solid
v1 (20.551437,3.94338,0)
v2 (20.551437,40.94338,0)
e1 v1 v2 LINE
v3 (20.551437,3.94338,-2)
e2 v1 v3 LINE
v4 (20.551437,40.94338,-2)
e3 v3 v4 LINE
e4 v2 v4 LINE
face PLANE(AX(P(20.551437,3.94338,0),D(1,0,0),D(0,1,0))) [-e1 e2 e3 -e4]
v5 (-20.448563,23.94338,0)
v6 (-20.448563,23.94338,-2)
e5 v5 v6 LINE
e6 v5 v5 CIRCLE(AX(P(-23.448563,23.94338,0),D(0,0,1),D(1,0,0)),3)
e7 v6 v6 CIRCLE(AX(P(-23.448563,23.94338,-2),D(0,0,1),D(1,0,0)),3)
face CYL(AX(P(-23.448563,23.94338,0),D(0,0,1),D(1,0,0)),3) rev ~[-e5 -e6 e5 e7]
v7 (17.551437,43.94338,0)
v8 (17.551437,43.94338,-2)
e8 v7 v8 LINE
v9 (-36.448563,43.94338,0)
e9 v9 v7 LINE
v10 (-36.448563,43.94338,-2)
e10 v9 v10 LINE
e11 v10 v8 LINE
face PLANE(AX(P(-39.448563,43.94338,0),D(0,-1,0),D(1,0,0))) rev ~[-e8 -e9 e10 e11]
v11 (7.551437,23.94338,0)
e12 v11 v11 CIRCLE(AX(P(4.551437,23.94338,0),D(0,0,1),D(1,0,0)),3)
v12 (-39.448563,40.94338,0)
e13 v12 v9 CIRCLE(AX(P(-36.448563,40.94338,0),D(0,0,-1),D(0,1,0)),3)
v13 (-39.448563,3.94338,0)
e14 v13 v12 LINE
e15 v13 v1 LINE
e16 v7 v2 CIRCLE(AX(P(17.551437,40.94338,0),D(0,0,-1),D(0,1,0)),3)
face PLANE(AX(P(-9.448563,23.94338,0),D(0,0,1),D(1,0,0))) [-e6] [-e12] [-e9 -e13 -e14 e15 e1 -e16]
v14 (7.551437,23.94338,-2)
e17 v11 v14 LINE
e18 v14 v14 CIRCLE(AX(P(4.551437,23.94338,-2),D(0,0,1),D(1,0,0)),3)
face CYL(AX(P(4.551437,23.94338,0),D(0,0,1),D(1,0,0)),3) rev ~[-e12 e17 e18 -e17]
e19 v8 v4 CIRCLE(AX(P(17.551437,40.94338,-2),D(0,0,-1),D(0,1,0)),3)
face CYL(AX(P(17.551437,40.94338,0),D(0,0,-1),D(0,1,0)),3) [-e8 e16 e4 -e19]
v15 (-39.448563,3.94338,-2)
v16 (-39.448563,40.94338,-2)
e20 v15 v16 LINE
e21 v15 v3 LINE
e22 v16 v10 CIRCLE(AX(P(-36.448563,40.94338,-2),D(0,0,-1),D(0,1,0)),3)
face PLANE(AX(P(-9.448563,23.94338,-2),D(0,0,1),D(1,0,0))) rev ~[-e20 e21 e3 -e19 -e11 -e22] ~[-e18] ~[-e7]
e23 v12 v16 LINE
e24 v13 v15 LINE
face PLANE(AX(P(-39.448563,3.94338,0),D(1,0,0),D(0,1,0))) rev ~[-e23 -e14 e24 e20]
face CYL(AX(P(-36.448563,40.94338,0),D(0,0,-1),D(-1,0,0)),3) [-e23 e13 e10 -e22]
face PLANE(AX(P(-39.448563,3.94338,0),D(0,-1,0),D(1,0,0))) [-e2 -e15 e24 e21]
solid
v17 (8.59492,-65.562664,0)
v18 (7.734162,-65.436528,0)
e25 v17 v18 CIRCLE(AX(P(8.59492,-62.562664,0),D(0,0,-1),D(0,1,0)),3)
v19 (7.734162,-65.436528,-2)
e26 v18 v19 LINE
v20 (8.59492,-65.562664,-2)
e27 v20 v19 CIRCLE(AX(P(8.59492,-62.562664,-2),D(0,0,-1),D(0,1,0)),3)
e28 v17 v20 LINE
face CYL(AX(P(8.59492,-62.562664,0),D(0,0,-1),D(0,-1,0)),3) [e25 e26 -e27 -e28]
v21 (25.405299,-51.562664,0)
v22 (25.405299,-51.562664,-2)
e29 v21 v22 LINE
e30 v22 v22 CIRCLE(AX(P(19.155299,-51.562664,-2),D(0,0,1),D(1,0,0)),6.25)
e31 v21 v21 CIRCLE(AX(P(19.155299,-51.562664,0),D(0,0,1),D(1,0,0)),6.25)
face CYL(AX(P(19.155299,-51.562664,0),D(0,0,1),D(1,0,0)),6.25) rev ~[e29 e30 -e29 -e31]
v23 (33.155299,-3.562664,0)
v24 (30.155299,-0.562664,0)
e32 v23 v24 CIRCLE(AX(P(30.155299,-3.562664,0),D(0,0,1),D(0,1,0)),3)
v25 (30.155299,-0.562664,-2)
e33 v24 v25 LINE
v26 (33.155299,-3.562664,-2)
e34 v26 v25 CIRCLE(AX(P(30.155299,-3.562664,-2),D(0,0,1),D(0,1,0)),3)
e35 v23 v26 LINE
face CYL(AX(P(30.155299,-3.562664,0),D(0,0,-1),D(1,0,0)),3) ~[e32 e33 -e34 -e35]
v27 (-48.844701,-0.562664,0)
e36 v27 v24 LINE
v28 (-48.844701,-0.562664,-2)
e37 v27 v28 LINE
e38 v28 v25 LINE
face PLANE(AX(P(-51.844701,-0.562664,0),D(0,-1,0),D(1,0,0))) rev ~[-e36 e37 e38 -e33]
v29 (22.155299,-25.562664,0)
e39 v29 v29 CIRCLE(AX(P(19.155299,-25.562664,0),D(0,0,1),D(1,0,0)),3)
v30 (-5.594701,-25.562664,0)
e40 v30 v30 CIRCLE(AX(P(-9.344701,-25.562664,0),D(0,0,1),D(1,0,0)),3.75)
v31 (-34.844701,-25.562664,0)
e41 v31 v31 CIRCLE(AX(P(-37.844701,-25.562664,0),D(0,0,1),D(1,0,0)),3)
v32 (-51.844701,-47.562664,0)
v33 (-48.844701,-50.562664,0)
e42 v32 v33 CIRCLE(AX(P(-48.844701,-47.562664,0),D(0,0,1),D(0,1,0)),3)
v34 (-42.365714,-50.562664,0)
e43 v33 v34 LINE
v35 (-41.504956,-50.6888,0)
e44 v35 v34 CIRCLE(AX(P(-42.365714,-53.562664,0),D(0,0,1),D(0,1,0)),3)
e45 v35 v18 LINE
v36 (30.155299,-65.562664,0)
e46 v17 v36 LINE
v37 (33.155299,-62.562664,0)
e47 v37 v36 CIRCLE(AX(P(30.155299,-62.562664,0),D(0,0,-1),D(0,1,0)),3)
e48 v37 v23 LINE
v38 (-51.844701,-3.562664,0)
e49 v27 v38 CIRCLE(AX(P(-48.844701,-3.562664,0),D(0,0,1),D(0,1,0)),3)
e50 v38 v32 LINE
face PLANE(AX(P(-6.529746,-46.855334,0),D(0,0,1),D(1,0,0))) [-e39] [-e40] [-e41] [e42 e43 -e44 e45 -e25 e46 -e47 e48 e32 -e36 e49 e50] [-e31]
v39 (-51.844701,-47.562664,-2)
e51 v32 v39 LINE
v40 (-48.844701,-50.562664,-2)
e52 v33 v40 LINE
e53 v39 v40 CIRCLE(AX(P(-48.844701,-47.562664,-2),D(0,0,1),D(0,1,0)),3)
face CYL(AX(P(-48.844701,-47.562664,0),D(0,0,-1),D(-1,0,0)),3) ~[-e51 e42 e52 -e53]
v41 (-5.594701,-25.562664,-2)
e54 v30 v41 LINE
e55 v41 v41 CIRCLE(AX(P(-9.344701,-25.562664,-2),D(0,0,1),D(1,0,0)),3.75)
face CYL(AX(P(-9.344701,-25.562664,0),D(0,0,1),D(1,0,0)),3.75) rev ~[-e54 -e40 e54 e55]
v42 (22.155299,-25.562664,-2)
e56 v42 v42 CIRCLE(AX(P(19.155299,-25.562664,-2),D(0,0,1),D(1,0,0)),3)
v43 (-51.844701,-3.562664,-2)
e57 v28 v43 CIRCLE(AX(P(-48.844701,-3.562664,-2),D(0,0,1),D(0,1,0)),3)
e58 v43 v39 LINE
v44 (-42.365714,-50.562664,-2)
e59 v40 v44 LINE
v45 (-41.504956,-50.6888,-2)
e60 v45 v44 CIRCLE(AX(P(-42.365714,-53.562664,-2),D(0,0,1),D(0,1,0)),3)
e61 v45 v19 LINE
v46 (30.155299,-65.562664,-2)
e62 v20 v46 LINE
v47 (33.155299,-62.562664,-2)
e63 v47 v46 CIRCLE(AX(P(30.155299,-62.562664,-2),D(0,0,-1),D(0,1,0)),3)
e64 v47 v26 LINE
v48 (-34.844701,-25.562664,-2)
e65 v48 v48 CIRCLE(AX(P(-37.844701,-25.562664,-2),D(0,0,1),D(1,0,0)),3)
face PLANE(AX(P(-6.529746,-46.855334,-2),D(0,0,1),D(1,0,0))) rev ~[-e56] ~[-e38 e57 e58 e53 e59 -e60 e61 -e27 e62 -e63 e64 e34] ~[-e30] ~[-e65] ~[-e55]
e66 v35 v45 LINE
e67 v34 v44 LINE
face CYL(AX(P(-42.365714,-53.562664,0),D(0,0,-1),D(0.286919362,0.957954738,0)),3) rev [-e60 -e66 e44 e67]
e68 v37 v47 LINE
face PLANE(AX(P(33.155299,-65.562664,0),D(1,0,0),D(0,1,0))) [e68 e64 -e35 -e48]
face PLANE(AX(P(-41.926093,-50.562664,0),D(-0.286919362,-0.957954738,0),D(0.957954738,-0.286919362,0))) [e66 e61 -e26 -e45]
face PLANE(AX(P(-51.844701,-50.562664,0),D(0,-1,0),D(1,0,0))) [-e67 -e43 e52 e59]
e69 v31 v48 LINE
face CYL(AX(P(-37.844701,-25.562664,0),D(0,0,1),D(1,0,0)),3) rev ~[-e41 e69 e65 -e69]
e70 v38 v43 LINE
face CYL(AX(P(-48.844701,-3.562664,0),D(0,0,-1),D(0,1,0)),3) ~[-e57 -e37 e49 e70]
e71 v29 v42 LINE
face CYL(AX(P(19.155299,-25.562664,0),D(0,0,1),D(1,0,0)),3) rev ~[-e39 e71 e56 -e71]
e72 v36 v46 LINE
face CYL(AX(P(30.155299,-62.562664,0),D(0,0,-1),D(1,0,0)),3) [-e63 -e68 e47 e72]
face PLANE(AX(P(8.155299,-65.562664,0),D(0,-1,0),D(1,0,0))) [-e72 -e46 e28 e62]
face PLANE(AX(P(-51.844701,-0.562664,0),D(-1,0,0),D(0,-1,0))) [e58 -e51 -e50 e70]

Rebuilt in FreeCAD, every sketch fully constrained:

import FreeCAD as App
import Part
import Sketcher
Q = App.Units.Quantity


def edges_at(feature, points):
    """Names of the edges that pass closest to the given points."""
    edges = feature.Shape.Edges
    near = lambda p: min(range(len(edges)), key=lambda i: edges[i].distToShape(Part.Vertex(*p))[0])
    return sorted({f"Edge{near(p) + 1}" for p in points})


def add_polygon(sketch, points):
    """Adds a closed chain of lines whose ends are joined by coincident constraints."""
    first, n = sketch.GeometryCount, len(points)
    for a, b in zip(points, points[1:] + points[:1]):
        sketch.addGeometry(Part.LineSegment(App.Vector(*a, 0), App.Vector(*b, 0)), False)
    for i in range(n):
        sketch.addConstraint(Sketcher.Constraint("Coincident", first + i, 2, first + (i + 1) % n, 1))

doc = App.newDocument("Part")
body = doc.addObject("PartDesign::Body", "Body")
body.AllowCompound = True

# Sketch on XY plane
sketch1 = doc.addObject("Sketcher::SketchObject", "Sketch")
body.addObject(sketch1)
sketch1.AttachmentSupport = (doc.XY_Plane, [""])
sketch1.MapMode = "FlatFace"
add_polygon(sketch1, [(-39.4, 43.9), (-39.4, 3.9), (20.6, 3.9), (20.6, 43.9)])  # lines 0-3
sketch1.addGeometry(Part.Circle(App.Vector(-23.4, 23.9, 0), App.Vector(0, 0, 1), 3), False)  # 4
sketch1.addGeometry(Part.Circle(App.Vector(4.6, 23.9, 0), App.Vector(0, 0, 1), 3), False)  # 5
add_polygon(sketch1, [(33.2, -65.6), (33.2, -0.6), (-51.8, -0.6), (-51.8, -50.6), (-41.9, -50.6), (8.2, -65.6)])  # lines 6-11
sketch1.addGeometry(Part.Circle(App.Vector(19.2, -51.6, 0), App.Vector(0, 0, 1), 6.2), False)  # 12
sketch1.addGeometry(Part.Circle(App.Vector(-37.8, -25.6, 0), App.Vector(0, 0, 1), 3), False)  # 13
sketch1.addGeometry(Part.Circle(App.Vector(-9.3, -25.6, 0), App.Vector(0, 0, 1), 3.8), False)  # 14
sketch1.addGeometry(Part.Circle(App.Vector(19.2, -25.6, 0), App.Vector(0, 0, 1), 3), False)  # 15
sketch1.addConstraint([
    Sketcher.Constraint("Vertical", 0),
    Sketcher.Constraint("Horizontal", 1),
    Sketcher.Constraint("Vertical", 2),
    Sketcher.Constraint("Horizontal", 3),
    Sketcher.Constraint("Vertical", 6),
    Sketcher.Constraint("Horizontal", 7),
    Sketcher.Constraint("Vertical", 8),
    Sketcher.Constraint("Horizontal", 9),
    Sketcher.Constraint("Horizontal", 11),
    Sketcher.Constraint("Equal", 4, 5),
    Sketcher.Constraint("Equal", 5, 13),
    Sketcher.Constraint("Equal", 13, 15),
    Sketcher.Constraint("Horizontal", 4, 3, 5, 3),
    Sketcher.Constraint("Horizontal", 13, 3, 14, 3),
    Sketcher.Constraint("Horizontal", 14, 3, 15, 3),
    Sketcher.Constraint("Vertical", 12, 3, 15, 3),
    Sketcher.Constraint("Diameter", 4, Q("6 mm")),
    Sketcher.Constraint("Diameter", 12, Q("12.5 mm")),
    Sketcher.Constraint("Diameter", 14, Q("7.5 mm")),
    Sketcher.Constraint("DistanceX", 1, 1, 1, 2, Q("60 mm")),
    Sketcher.Constraint("DistanceX", 7, 2, 7, 1, Q("85 mm")),
    Sketcher.Constraint("DistanceX", 11, 1, 11, 2, Q("25 mm")),
    Sketcher.Constraint("DistanceY", 0, 2, 0, 1, Q("40 mm")),
    Sketcher.Constraint("DistanceY", 6, 1, 6, 2, Q("65 mm")),
    Sketcher.Constraint("DistanceY", 8, 2, 8, 1, Q("50 mm")),
    Sketcher.Constraint("DistanceX", 4, 3, 5, 3, Q("28 mm")),
    Sketcher.Constraint("DistanceX", 13, 3, 12, 3, Q("57 mm")),
    Sketcher.Constraint("DistanceY", 12, 3, 13, 3, Q("26 mm")),
    Sketcher.Constraint("DistanceX", 0, 2, 4, 3, Q("16 mm")),
    Sketcher.Constraint("DistanceY", 0, 2, 4, 3, Q("20 mm")),
    Sketcher.Constraint("DistanceX", 15, 3, 6, 2, Q("14 mm")),
    Sketcher.Constraint("DistanceY", 15, 3, 6, 2, Q("25 mm")),
    Sketcher.Constraint("DistanceX", 13, 3, 14, 3, Q("28.5 mm")),
    Sketcher.Constraint("DistanceX", -1, 1, 12, 3, Q("19.155299 mm")),
    Sketcher.Constraint("DistanceX", 9, 1, 9, 2, Q("9.918608 mm")),
    Sketcher.Constraint("DistanceY", -1, 1, 4, 3, Q("23.94338 mm")),
    Sketcher.Constraint("DistanceX", 0, 2, 13, 3, Q("1.603862 mm")),
    Sketcher.Constraint("DistanceY", 12, 3, -1, 1, Q("51.562664 mm")),
])
pad1 = doc.addObject("PartDesign::Pad", "Pad")
body.addObject(pad1)
pad1.Profile = sketch1
pad1.Length = 2
pad1.Reversed = True
doc.recompute()

fillet = doc.addObject("PartDesign::Fillet", "Fillet")
body.addObject(fillet)
fillet.Base = (pad1, edges_at(pad1, [
    (-39.449, 43.943, -1),
    (20.551, 43.943, -1),
    (-51.845, -0.563, -1),
    (-51.845, -50.563, -1),
    (-41.926, -50.563, -1),
    (8.155, -65.563, -1),
    (33.155, -65.563, -1),
    (33.155, -0.563, -1),
]))
fillet.Radius = 3

doc.recompute()
